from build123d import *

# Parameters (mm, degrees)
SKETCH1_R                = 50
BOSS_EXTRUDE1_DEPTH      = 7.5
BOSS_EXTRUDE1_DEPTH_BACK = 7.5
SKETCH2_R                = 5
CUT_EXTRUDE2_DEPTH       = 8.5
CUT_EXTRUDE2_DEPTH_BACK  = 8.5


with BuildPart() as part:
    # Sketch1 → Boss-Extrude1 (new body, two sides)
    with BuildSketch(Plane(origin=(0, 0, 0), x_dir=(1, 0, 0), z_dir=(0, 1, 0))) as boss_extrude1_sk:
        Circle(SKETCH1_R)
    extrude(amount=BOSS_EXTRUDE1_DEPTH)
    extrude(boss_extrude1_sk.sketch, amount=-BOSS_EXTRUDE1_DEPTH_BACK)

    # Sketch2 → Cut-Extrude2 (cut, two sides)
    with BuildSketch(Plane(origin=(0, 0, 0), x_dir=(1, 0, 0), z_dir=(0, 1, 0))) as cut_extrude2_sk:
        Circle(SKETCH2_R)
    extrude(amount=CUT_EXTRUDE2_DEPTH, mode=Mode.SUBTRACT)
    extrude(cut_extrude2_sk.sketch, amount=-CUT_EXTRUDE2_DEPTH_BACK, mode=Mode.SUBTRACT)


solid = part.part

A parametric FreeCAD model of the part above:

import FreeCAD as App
import Part
import Sketcher
from FreeCAD import Vector

doc = App.newDocument("Part")
body = doc.addObject("PartDesign::Body", "Body")

sketch1 = body.newObject("Sketcher::SketchObject", "Sketch")
sketch1.AttachmentSupport = (doc.getObject("XZ_Plane"), [""])
sketch1.MapMode = "FlatFace"
sketch1.addGeometry(Part.Circle(Vector(0, 0, 0), Vector(0, 0, 1), 50), False)
sketch1.addConstraint([
    Sketcher.Constraint("Coincident", 0, 3, -1, 1),
    Sketcher.Constraint("Diameter", 0, 100.0),
])
pad1 = body.newObject("PartDesign::Pad", "Pad")
pad1.Profile = sketch1
pad1.Type = "TwoLengths"
pad1.Length = 7.5
pad1.Length2 = 7.5
pad1.Reversed = True

sketch2 = body.newObject("Sketcher::SketchObject", "Sketch001")
sketch2.AttachmentSupport = (doc.getObject("XZ_Plane"), [""])
sketch2.MapMode = "FlatFace"
sketch2.addGeometry(Part.Circle(Vector(0, 0, 0), Vector(0, 0, 1), 5), False)
sketch2.addConstraint([
    Sketcher.Constraint("Coincident", 0, 3, -1, 1),
    Sketcher.Constraint("Diameter", 0, 10.0),
])
pocket1 = body.newObject("PartDesign::Pocket", "Pocket")
pocket1.Profile = sketch2
pocket1.Type = "ThroughAll"
pocket1.Midplane = True

doc.recompute()
